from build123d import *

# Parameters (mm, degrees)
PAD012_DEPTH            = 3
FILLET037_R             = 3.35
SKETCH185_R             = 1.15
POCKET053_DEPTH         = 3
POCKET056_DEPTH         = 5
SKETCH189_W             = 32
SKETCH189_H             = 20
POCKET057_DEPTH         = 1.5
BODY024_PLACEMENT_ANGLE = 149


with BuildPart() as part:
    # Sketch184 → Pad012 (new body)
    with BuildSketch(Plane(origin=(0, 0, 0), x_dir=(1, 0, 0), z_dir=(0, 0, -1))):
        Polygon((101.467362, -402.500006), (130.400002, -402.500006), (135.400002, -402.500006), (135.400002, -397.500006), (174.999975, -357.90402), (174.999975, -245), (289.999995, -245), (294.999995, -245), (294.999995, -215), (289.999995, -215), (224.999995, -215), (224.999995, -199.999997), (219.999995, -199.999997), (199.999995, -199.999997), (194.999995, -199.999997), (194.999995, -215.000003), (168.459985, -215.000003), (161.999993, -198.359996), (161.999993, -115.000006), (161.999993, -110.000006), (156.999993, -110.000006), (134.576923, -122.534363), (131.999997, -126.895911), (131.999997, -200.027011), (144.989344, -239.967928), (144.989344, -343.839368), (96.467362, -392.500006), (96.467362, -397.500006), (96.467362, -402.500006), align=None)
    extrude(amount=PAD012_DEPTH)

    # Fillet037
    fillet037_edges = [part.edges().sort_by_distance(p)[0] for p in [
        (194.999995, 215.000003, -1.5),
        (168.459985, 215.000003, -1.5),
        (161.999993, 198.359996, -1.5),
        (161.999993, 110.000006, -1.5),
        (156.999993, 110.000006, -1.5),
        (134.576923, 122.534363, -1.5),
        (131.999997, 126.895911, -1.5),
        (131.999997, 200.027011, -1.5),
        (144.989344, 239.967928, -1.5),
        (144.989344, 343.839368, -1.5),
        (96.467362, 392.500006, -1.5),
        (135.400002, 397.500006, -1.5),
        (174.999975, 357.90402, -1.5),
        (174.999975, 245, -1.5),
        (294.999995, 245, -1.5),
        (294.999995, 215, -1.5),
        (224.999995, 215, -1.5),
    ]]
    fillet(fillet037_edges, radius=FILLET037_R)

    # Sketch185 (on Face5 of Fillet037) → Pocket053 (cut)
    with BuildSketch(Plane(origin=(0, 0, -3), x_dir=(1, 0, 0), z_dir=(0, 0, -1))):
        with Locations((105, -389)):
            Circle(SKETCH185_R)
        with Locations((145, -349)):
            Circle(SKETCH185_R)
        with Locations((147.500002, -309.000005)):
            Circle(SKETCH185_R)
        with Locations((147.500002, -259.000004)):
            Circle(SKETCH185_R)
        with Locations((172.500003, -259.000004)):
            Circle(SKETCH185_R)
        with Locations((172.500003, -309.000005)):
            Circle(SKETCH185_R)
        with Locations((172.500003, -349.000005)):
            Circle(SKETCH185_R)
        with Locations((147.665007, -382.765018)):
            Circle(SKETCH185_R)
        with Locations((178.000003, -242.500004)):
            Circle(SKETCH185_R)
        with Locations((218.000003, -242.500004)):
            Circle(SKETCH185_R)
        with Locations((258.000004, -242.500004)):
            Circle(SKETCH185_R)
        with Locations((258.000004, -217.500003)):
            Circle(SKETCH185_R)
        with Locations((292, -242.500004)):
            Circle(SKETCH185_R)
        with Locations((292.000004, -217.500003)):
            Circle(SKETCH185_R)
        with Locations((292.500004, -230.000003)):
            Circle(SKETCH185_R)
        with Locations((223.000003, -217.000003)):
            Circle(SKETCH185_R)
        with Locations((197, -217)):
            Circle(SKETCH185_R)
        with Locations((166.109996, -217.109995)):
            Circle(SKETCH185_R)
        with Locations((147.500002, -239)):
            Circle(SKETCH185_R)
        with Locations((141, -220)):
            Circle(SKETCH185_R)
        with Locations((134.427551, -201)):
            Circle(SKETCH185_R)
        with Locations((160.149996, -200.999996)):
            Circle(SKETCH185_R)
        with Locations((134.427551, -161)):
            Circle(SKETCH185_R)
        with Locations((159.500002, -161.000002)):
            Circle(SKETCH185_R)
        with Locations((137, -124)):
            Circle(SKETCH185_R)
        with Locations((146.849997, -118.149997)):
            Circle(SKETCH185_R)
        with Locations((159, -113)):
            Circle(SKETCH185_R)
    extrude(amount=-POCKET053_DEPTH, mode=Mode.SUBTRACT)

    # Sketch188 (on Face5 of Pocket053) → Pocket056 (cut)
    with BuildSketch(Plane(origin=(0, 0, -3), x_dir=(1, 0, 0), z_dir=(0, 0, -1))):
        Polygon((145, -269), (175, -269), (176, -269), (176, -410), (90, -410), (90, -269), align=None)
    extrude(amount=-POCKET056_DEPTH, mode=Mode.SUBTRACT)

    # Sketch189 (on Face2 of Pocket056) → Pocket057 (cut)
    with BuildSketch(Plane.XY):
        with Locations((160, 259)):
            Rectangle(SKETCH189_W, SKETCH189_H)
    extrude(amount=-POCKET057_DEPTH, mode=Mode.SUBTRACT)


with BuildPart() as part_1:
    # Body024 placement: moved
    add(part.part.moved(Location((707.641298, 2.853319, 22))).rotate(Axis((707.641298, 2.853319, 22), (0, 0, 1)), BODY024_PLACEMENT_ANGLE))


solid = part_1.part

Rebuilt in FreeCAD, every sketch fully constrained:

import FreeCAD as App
import Part
import Sketcher
from FreeCAD import Vector


def edges_at(feature, points):
    """Names of the edges that pass closest to the given points."""
    edges = feature.Shape.Edges
    near = lambda p: min(range(len(edges)), key=lambda i: edges[i].distToShape(Part.Vertex(*p))[0])
    return sorted({f"Edge{near(p) + 1}" for p in points})


def add_polygon(sketch, points):
    """Adds a closed chain of lines whose ends are joined by coincident constraints."""
    first, n = sketch.GeometryCount, len(points)
    for a, b in zip(points, points[1:] + points[:1]):
        sketch.addGeometry(Part.LineSegment(App.Vector(*a, 0), App.Vector(*b, 0)), False)
    for i in range(n):
        sketch.addConstraint(Sketcher.Constraint("Coincident", first + i, 2, first + (i + 1) % n, 1))

doc = App.newDocument("Part")
body = doc.addObject("PartDesign::Body", "Body")

# Sketch on XY plane
sketch1 = body.newObject("Sketcher::SketchObject", "Sketch")
sketch1.AttachmentSupport = (doc.getObject("XY_Plane"), [""])
sketch1.MapMode = "FlatFace"
add_polygon(sketch1, [(135.400002, 402.500006), (135.400002, 397.500006), (174.999975, 357.90402), (174.999975, 245), (294.999995, 245), (294.999995, 215), (224.999995, 215), (224.999995, 199.999997), (194.999995, 199.999997), (194.999995, 215.000003), (168.459985, 215.000003), (161.999993, 198.359996), (161.999993, 110.000006), (156.999993, 110.000006), (134.576923, 122.534363), (131.999997, 126.895911), (131.999997, 200.027011), (144.989344, 239.967928), (144.989344, 343.839368), (96.467362, 392.500006), (96.467362, 402.500006)])  # lines 0-20
sketch1.addConstraint(Sketcher.Constraint("Vertical", 0))
sketch1.addConstraint(Sketcher.Constraint("Vertical", 2))
sketch1.addConstraint(Sketcher.Constraint("Horizontal", 3))
sketch1.addConstraint(Sketcher.Constraint("Vertical", 4))
sketch1.addConstraint(Sketcher.Constraint("Horizontal", 5))
sketch1.addConstraint(Sketcher.Constraint("Vertical", 6))
sketch1.addConstraint(Sketcher.Constraint("Horizontal", 7))
sketch1.addConstraint(Sketcher.Constraint("Vertical", 8))
sketch1.addConstraint(Sketcher.Constraint("Horizontal", 9))
sketch1.addConstraint(Sketcher.Constraint("Vertical", 11))
sketch1.addConstraint(Sketcher.Constraint("Horizontal", 12))
sketch1.addConstraint(Sketcher.Constraint("Vertical", 15))
sketch1.addConstraint(Sketcher.Constraint("Vertical", 17))
sketch1.addConstraint(Sketcher.Constraint("Vertical", 19))
sketch1.addConstraint(Sketcher.Constraint("Horizontal", 20))
sketch1.addConstraint(Sketcher.Constraint("Equal", 12, 0))
sketch1.addConstraint(Sketcher.Constraint("Equal", 7, 4))
sketch1.addConstraint(Sketcher.Constraint("DistanceX", 5, 2, 5, 1, 70.0))
sketch1.addConstraint(Sketcher.Constraint("DistanceX", 7, 2, 7, 1, 30.0))
sketch1.addConstraint(Sketcher.Constraint("DistanceX", 12, 2, 12, 1, 5.0))
sketch1.addConstraint(Sketcher.Constraint("DistanceY", 19, 1, 19, 2, 10.0))
sketch1.addConstraint(Sketcher.Constraint("Distance", 1, 56.0))
sketch1.addConstraint(Sketcher.Constraint("Distance", 16, 42.0))
sketch1.addConstraint(Sketcher.Constraint("DistanceY", -1, 1, 2, 2, 245.0))
sketch1.addConstraint(Sketcher.Constraint("DistanceX", 15, 2, 7, 2, 62.999998))
sketch1.addConstraint(Sketcher.Constraint("DistanceX", -1, 1, 0, 2, 135.400002))
sketch1.addConstraint(Sketcher.Constraint("DistanceY", 10, 2, 7, 2, 1.640001))
sketch1.addConstraint(Sketcher.Constraint("DistanceY", 15, 1, 15, 2, 73.1311))
sketch1.addConstraint(Sketcher.Constraint("Distance", 13, 25.6886))
sketch1.addConstraint(Sketcher.Constraint("DistanceX", 3, 1, 3, 2, 120.00002))
sketch1.addConstraint(Sketcher.Constraint("DistanceX", 9, 2, 9, 1, 26.54001))
sketch1.addConstraint(Sketcher.Constraint("DistanceX", 20, 1, 20, 2, 38.93264))
sketch1.addConstraint(Sketcher.Constraint("DistanceY", 2, 2, 2, 1, 112.90402))
sketch1.addConstraint(Sketcher.Constraint("DistanceY", 11, 2, 11, 1, 88.35999))
sketch1.addConstraint(Sketcher.Constraint("DistanceY", 17, 1, 17, 2, 103.87144))
sketch1.addConstraint(Sketcher.Constraint("Distance", 14, 5.06593))
sketch1.addConstraint(Sketcher.Constraint("Distance", 18, 68.71856))
sketch1.addConstraint(Sketcher.Constraint("DistanceY", 6, 2, 6, 1, 15.000003))
sketch1.addConstraint(Sketcher.Constraint("DistanceY", 8, 1, 8, 2, 15.000006))
sketch1.addConstraint(Sketcher.Constraint("DistanceY", -1, 1, 14, 2, 126.895911))
sketch1.addConstraint(Sketcher.Constraint("DistanceX", 10, 2, 9, 2, 6.459992))
sketch1.addConstraint(Sketcher.Constraint("DistanceX", 0, 2, 17, 2, 9.589342))
pad1 = body.newObject("PartDesign::Pad", "Pad")
pad1.Profile = sketch1
pad1.Length = 3
pad1.Reversed = True
doc.recompute()

fillet = body.newObject("PartDesign::Fillet", "Fillet")
fillet.Base = (pad1, edges_at(pad1, [
    (195, 215, -1.5),
    (168.46, 215, -1.5),
    (162, 198.36, -1.5),
    (162, 110, -1.5),
    (157, 110, -1.5),
    (134.577, 122.534, -1.5),
    (132, 126.896, -1.5),
    (132, 200.027, -1.5),
    (144.989, 239.968, -1.5),
    (144.989, 343.839, -1.5),
    (96.467, 392.5, -1.5),
    (135.4, 397.5, -1.5),
    (175, 357.904, -1.5),
    (175, 245, -1.5),
    (295, 245, -1.5),
    (295, 215, -1.5),
    (225, 215, -1.5),
]))
fillet.Radius = 3.35

# Sketch on XY plane
sketch2 = body.newObject("Sketcher::SketchObject", "Sketch001")
sketch2.AttachmentSupport = (doc.getObject("XY_Plane"), [""])
sketch2.MapMode = "FlatFace"
sketch2.AttachmentOffset = App.Placement(Vector(0, 0, -3), App.Rotation())
sketch2.addGeometry(Part.Circle(Vector(105, 389, 0), Vector(0, 0, 1), 1.15), False)
sketch2.addGeometry(Part.Circle(Vector(145, 349, 0), Vector(0, 0, 1), 1.15), False)
sketch2.addGeometry(Part.Circle(Vector(147.500002, 309.000005, 0), Vector(0, 0, 1), 1.15), False)
sketch2.addGeometry(Part.Circle(Vector(147.500002, 259.000004, 0), Vector(0, 0, 1), 1.15), False)
sketch2.addGeometry(Part.Circle(Vector(172.500003, 259.000004, 0), Vector(0, 0, 1), 1.15), False)
sketch2.addGeometry(Part.Circle(Vector(172.500003, 309.000005, 0), Vector(0, 0, 1), 1.15), False)
sketch2.addGeometry(Part.Circle(Vector(172.500003, 349.000005, 0), Vector(0, 0, 1), 1.15), False)
sketch2.addGeometry(Part.Circle(Vector(147.665007, 382.765018, 0), Vector(0, 0, 1), 1.15), False)
sketch2.addGeometry(Part.Circle(Vector(178.000003, 242.500004, 0), Vector(0, 0, 1), 1.15), False)
sketch2.addGeometry(Part.Circle(Vector(218.000003, 242.500004, 0), Vector(0, 0, 1), 1.15), False)
sketch2.addGeometry(Part.Circle(Vector(258.000004, 242.500004, 0), Vector(0, 0, 1), 1.15), False)
sketch2.addGeometry(Part.Circle(Vector(258.000004, 217.500003, 0), Vector(0, 0, 1), 1.15), False)
sketch2.addGeometry(Part.Circle(Vector(292, 242.500004, 0), Vector(0, 0, 1), 1.15), False)
sketch2.addGeometry(Part.Circle(Vector(292.000004, 217.500003, 0), Vector(0, 0, 1), 1.15), False)
sketch2.addGeometry(Part.Circle(Vector(292.500004, 230.000003, 0), Vector(0, 0, 1), 1.15), False)
sketch2.addGeometry(Part.Circle(Vector(223.000003, 217.000003, 0), Vector(0, 0, 1), 1.15), False)
sketch2.addGeometry(Part.Circle(Vector(197, 217, 0), Vector(0, 0, 1), 1.15), False)
sketch2.addGeometry(Part.Circle(Vector(166.109996, 217.109995, 0), Vector(0, 0, 1), 1.15), False)
sketch2.addGeometry(Part.Circle(Vector(147.500002, 239, 0), Vector(0, 0, 1), 1.15), False)
sketch2.addGeometry(Part.Circle(Vector(141, 220, 0), Vector(0, 0, 1), 1.15), False)
sketch2.addGeometry(Part.Circle(Vector(134.427551, 201, 0), Vector(0, 0, 1), 1.15), False)
sketch2.addGeometry(Part.Circle(Vector(160.149996, 200.999996, 0), Vector(0, 0, 1), 1.15), False)
sketch2.addGeometry(Part.Circle(Vector(134.427551, 161, 0), Vector(0, 0, 1), 1.15), False)
sketch2.addGeometry(Part.Circle(Vector(159.500002, 161.000002, 0), Vector(0, 0, 1), 1.15), False)
sketch2.addGeometry(Part.Circle(Vector(137, 124, 0), Vector(0, 0, 1), 1.15), False)
sketch2.addGeometry(Part.Circle(Vector(146.849997, 118.149997, 0), Vector(0, 0, 1), 1.15), False)
sketch2.addGeometry(Part.Circle(Vector(159, 113, 0), Vector(0, 0, 1), 1.15), False)
sketch2.addConstraint(Sketcher.Constraint("Equal", 0, 1))
sketch2.addConstraint(Sketcher.Constraint("Equal", 1, 2))
sketch2.addConstraint(Sketcher.Constraint("Equal", 2, 3))
sketch2.addConstraint(Sketcher.Constraint("Equal", 3, 4))
sketch2.addConstraint(Sketcher.Constraint("Equal", 4, 5))
sketch2.addConstraint(Sketcher.Constraint("Equal", 5, 6))
sketch2.addConstraint(Sketcher.Constraint("Equal", 6, 7))
sketch2.addConstraint(Sketcher.Constraint("Equal", 7, 8))
sketch2.addConstraint(Sketcher.Constraint("Equal", 8, 9))
sketch2.addConstraint(Sketcher.Constraint("Equal", 9, 10))
sketch2.addConstraint(Sketcher.Constraint("Equal", 10, 11))
sketch2.addConstraint(Sketcher.Constraint("Equal", 11, 12))
sketch2.addConstraint(Sketcher.Constraint("Equal", 12, 13))
sketch2.addConstraint(Sketcher.Constraint("Equal", 13, 14))
sketch2.addConstraint(Sketcher.Constraint("Equal", 14, 15))
sketch2.addConstraint(Sketcher.Constraint("Equal", 15, 16))
sketch2.addConstraint(Sketcher.Constraint("Equal", 16, 17))
sketch2.addConstraint(Sketcher.Constraint("Equal", 17, 18))
sketch2.addConstraint(Sketcher.Constraint("Equal", 18, 19))
sketch2.addConstraint(Sketcher.Constraint("Equal", 19, 20))
sketch2.addConstraint(Sketcher.Constraint("Equal", 20, 21))
sketch2.addConstraint(Sketcher.Constraint("Equal", 21, 22))
sketch2.addConstraint(Sketcher.Constraint("Equal", 22, 23))
sketch2.addConstraint(Sketcher.Constraint("Equal", 23, 24))
sketch2.addConstraint(Sketcher.Constraint("Equal", 24, 25))
sketch2.addConstraint(Sketcher.Constraint("Equal", 25, 26))
sketch2.addConstraint(Sketcher.Constraint("Horizontal", 3, 3, 4, 3))
sketch2.addConstraint(Sketcher.Constraint("Horizontal", 2, 3, 5, 3))
sketch2.addConstraint(Sketcher.Constraint("Horizontal", 8, 3, 9, 3))
sketch2.addConstraint(Sketcher.Constraint("Horizontal", 9, 3, 10, 3))
sketch2.addConstraint(Sketcher.Constraint("Horizontal", 10, 3, 12, 3))
sketch2.addConstraint(Sketcher.Constraint("Horizontal", 11, 3, 13, 3))
sketch2.addConstraint(Sketcher.Constraint("Horizontal", 22, 3, 23, 3))
sketch2.addConstraint(Sketcher.Constraint("Vertical", 2, 3, 3, 3))
sketch2.addConstraint(Sketcher.Constraint("Vertical", 4, 3, 5, 3))
sketch2.addConstraint(Sketcher.Constraint("Vertical", 5, 3, 6, 3))
sketch2.addConstraint(Sketcher.Constraint("Vertical", 10, 3, 11, 3))
sketch2.addConstraint(Sketcher.Constraint("Vertical", 3, 3, 18, 3))
sketch2.addConstraint(Sketcher.Constraint("Vertical", 20, 3, 22, 3))
sketch2.addConstraint(Sketcher.Constraint("Diameter", 0, 2.3))
sketch2.addConstraint(Sketcher.Constraint("DistanceX", -1, 1, 0, 3, 105.0))
sketch2.addConstraint(Sketcher.Constraint("DistanceY", -1, 1, 0, 3, 389.0))
sketch2.addConstraint(Sketcher.Constraint("DistanceX", -1, 1, 1, 3, 145.0))
sketch2.addConstraint(Sketcher.Constraint("DistanceY", -1, 1, 1, 3, 349.0))
sketch2.addConstraint(Sketcher.Constraint("DistanceX", -1, 1, 12, 3, 292.0))
sketch2.addConstraint(Sketcher.Constraint("DistanceX", -1, 1, 16, 3, 197.0))
sketch2.addConstraint(Sketcher.Constraint("DistanceY", -1, 1, 16, 3, 217.0))
sketch2.addConstraint(Sketcher.Constraint("DistanceY", -1, 1, 18, 3, 239.0))
sketch2.addConstraint(Sketcher.Constraint("DistanceX", -1, 1, 19, 3, 141.0))
sketch2.addConstraint(Sketcher.Constraint("DistanceY", -1, 1, 19, 3, 220.0))
sketch2.addConstraint(Sketcher.Constraint("DistanceY", -1, 1, 20, 3, 201.0))
sketch2.addConstraint(Sketcher.Constraint("DistanceY", -1, 1, 22, 3, 161.0))
sketch2.addConstraint(Sketcher.Constraint("DistanceX", -1, 1, 24, 3, 137.0))
sketch2.addConstraint(Sketcher.Constraint("DistanceY", -1, 1, 24, 3, 124.0))
sketch2.addConstraint(Sketcher.Constraint("DistanceX", -1, 1, 26, 3, 159.0))
sketch2.addConstraint(Sketcher.Constraint("DistanceY", -1, 1, 26, 3, 113.0))
sketch2.addConstraint(Sketcher.Constraint("DistanceY", 3, 3, 2, 3, 50.000001))
sketch2.addConstraint(Sketcher.Constraint("DistanceX", 3, 3, 4, 3, 25.000001))
sketch2.addConstraint(Sketcher.Constraint("DistanceY", 5, 3, 6, 3, 40.0))
sketch2.addConstraint(Sketcher.Constraint("DistanceX", 8, 3, 9, 3, 40.0))
sketch2.addConstraint(Sketcher.Constraint("DistanceX", 9, 3, 10, 3, 40.000001))
sketch2.addConstraint(Sketcher.Constraint("DistanceY", 11, 3, 10, 3, 25.000001))
sketch2.addConstraint(Sketcher.Constraint("DistanceX", 11, 3, 13, 3, 34.0))
sketch2.addConstraint(Sketcher.Constraint("DistanceX", 9, 3, 15, 3, 5.0))
sketch2.addConstraint(Sketcher.Constraint("DistanceY", 15, 3, 4, 3, 42.000001))
sketch2.addConstraint(Sketcher.Constraint("DistanceX", -1, 1, 2, 3, 147.500002))
sketch2.addConstraint(Sketcher.Constraint("DistanceX", -1, 1, 23, 3, 159.500002))
sketch2.addConstraint(Sketcher.Constraint("DistanceX", 4, 3, 8, 3, 5.5))
sketch2.addConstraint(Sketcher.Constraint("DistanceY", 8, 3, 4, 3, 16.5))
sketch2.addConstraint(Sketcher.Constraint("DistanceX", 13, 3, 14, 3, 0.5))
sketch2.addConstraint(Sketcher.Constraint("DistanceY", 13, 3, 14, 3, 12.5))
sketch2.addConstraint(Sketcher.Constraint("DistanceX", 25, 3, 21, 3, 13.299999))
sketch2.addConstraint(Sketcher.Constraint("DistanceX", 21, 3, 17, 3, 5.96))
sketch2.addConstraint(Sketcher.Constraint("DistanceY", 21, 3, 17, 3, 16.109999))
sketch2.addConstraint(Sketcher.Constraint("DistanceY", 25, 3, 21, 3, 82.849999))
sketch2.addConstraint(Sketcher.Constraint("DistanceY", -1, 1, 7, 3, 382.765018))
sketch2.addConstraint(Sketcher.Constraint("DistanceX", -1, 1, 20, 3, 134.427551))
sketch2.addConstraint(Sketcher.Constraint("DistanceY", 17, 3, 8, 3, 25.390009))
sketch2.addConstraint(Sketcher.Constraint("DistanceY", -1, 1, 2, 3, 309.000005))
sketch2.addConstraint(Sketcher.Constraint("DistanceX", -1, 1, 7, 3, 147.665007))
sketch2.addConstraint(Sketcher.Constraint("DistanceX", -1, 1, 17, 3, 166.109996))
pocket1 = body.newObject("PartDesign::Pocket", "Pocket")
pocket1.Profile = sketch2
pocket1.Length = 3
pocket1.Reversed = True

# Sketch on XY plane
sketch3 = body.newObject("Sketcher::SketchObject", "Sketch002")
sketch3.AttachmentSupport = (doc.getObject("XY_Plane"), [""])
sketch3.MapMode = "FlatFace"
sketch3.AttachmentOffset = App.Placement(Vector(0, 0, -3), App.Rotation())
add_polygon(sketch3, [(176, 269), (90, 269), (90, 410), (176, 410)])  # lines 0-3
sketch3.addConstraint(Sketcher.Constraint("Horizontal", 0))
sketch3.addConstraint(Sketcher.Constraint("Vertical", 1))
sketch3.addConstraint(Sketcher.Constraint("Horizontal", 2))
sketch3.addConstraint(Sketcher.Constraint("Vertical", 3))
sketch3.addConstraint(Sketcher.Constraint("DistanceX", 0, 2, 0, 1, 86.0))
sketch3.addConstraint(Sketcher.Constraint("DistanceY", 1, 1, 1, 2, 141.0))
sketch3.addConstraint(Sketcher.Constraint("DistanceX", -1, 1, 0, 2, 90.0))
sketch3.addConstraint(Sketcher.Constraint("DistanceY", -1, 1, 0, 2, 269.0))
pocket2 = body.newObject("PartDesign::Pocket", "Pocket001")
pocket2.Profile = sketch3
pocket2.Length = 5
pocket2.Reversed = True

# Sketch on XY plane
sketch4 = body.newObject("Sketcher::SketchObject", "Sketch003")
sketch4.AttachmentSupport = (doc.getObject("XY_Plane"), [""])
sketch4.MapMode = "FlatFace"
add_polygon(sketch4, [(144, 269), (144, 249), (176, 249), (176, 269)])  # lines 0-3
sketch4.addConstraint(Sketcher.Constraint("Vertical", 0))
sketch4.addConstraint(Sketcher.Constraint("Horizontal", 1))
sketch4.addConstraint(Sketcher.Constraint("Vertical", 2))
sketch4.addConstraint(Sketcher.Constraint("Horizontal", 3))
sketch4.addConstraint(Sketcher.Constraint("DistanceX", 1, 1, 1, 2, 32.0))
sketch4.addConstraint(Sketcher.Constraint("DistanceY", 0, 2, 0, 1, 20.0))
sketch4.addConstraint(Sketcher.Constraint("DistanceX", -1, 1, 0, 2, 144.0))
sketch4.addConstraint(Sketcher.Constraint("DistanceY", -1, 1, 0, 2, 249.0))
pocket3 = body.newObject("PartDesign::Pocket", "Pocket002")
pocket3.Profile = sketch4
pocket3.Length = 1.5
body2 = doc.addObject("PartDesign::Body", "Body001")
doc.recompute()

body.Placement = App.Placement(Vector(707.641298, 2.853319, 22), App.Rotation(Vector(0, 0, 1), 149))
boolean = body2.newObject("PartDesign::Boolean", "Boolean")
boolean.Type = "Fuse"
boolean.addObjects([body])

doc.recompute()
